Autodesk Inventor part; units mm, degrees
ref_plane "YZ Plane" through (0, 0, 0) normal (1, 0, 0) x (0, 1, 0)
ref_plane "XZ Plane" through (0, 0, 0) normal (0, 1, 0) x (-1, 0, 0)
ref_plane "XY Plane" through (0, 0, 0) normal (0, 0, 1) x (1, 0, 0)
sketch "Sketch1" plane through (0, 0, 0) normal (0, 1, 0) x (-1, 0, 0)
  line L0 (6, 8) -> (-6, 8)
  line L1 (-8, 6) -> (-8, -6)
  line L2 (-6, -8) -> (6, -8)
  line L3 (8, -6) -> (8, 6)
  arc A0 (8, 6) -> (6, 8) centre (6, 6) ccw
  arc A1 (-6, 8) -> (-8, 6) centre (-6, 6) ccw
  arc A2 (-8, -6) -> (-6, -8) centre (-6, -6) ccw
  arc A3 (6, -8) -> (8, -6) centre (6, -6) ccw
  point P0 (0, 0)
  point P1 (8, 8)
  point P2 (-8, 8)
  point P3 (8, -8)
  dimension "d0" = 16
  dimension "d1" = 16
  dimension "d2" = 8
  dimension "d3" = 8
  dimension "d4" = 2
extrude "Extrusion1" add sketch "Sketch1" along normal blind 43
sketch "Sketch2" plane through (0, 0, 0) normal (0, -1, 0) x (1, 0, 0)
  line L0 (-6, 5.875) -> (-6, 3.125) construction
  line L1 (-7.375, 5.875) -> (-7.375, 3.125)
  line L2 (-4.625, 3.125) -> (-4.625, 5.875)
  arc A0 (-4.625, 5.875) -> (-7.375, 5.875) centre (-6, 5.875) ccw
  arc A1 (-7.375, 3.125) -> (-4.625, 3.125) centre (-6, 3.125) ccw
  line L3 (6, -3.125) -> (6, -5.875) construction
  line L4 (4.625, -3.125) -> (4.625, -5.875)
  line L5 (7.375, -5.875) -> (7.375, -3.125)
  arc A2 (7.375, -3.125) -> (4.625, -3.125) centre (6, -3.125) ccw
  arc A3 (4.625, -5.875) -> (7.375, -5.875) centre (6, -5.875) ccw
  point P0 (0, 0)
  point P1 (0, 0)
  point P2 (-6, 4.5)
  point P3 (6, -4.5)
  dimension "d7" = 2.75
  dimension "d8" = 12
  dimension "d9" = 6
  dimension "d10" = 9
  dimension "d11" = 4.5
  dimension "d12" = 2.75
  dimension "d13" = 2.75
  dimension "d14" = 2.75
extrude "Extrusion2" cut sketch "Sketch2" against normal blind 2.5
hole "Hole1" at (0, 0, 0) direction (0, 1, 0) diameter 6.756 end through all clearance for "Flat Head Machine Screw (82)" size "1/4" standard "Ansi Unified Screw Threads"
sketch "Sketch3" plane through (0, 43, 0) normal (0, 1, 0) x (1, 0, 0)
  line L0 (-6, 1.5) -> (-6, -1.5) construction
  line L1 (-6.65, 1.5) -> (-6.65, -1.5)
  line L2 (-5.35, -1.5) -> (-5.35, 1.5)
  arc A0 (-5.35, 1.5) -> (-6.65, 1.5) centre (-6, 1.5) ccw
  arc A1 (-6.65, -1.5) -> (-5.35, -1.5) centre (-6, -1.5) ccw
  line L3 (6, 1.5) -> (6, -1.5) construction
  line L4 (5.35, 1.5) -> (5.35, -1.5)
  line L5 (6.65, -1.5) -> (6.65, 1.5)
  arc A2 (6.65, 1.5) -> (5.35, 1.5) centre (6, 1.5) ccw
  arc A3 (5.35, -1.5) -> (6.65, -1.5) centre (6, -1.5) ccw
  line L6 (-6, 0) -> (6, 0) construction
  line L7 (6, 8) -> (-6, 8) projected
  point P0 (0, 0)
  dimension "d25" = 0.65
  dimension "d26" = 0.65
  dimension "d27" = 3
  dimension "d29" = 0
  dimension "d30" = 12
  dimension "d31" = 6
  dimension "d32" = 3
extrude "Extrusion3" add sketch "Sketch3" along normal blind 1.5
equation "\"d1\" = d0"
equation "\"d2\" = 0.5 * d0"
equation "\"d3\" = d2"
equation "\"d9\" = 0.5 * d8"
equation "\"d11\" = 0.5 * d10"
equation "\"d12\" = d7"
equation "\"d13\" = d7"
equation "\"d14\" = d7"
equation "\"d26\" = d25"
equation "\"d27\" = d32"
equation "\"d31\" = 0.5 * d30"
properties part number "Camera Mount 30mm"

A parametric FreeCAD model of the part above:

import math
import FreeCAD as App
import Part
import Sketcher
from FreeCAD import Vector

doc = App.newDocument("Part")
body = doc.addObject("PartDesign::Body", "Body")

# Sketch on XZ plane
sketch1 = body.newObject("Sketcher::SketchObject", "Sketch")
sketch1.AttachmentSupport = (doc.getObject("XZ_Plane"), [""])
sketch1.MapMode = "FlatFace"
sketch1.addGeometry([
    Part.ArcOfCircle(Part.Circle(Vector(-6, 6, 0), Vector(0, 0, 1), 2), math.radians(90), math.radians(180)),  # 0
    Part.LineSegment(Vector(-6, 8, 0), Vector(6, 8, 0)),  # 1
    Part.ArcOfCircle(Part.Circle(Vector(6, 6, 0), Vector(0, 0, 1), 2), math.radians(0), math.radians(90)),  # 2
    Part.LineSegment(Vector(8, 6, 0), Vector(8, -6, 0)),  # 3
    Part.ArcOfCircle(Part.Circle(Vector(6, -6, 0), Vector(0, 0, 1), 2), math.radians(-90), math.radians(0)),  # 4
    Part.LineSegment(Vector(6, -8, 0), Vector(-6, -8, 0)),  # 5
    Part.ArcOfCircle(Part.Circle(Vector(-6, -6, 0), Vector(0, 0, 1), 2), math.radians(180), math.radians(270)),  # 6
    Part.LineSegment(Vector(-8, -6, 0), Vector(-8, 6, 0)),  # 7
], False)
sketch1.addConstraint([
    Sketcher.Constraint("Tangent", 0, 1, 1, 1),
    Sketcher.Constraint("Tangent", 1, 2, 2, 2),
    Sketcher.Constraint("Tangent", 2, 1, 3, 1),
    Sketcher.Constraint("Tangent", 3, 2, 4, 2),
    Sketcher.Constraint("Tangent", 4, 1, 5, 1),
    Sketcher.Constraint("Tangent", 5, 2, 6, 2),
    Sketcher.Constraint("Tangent", 6, 1, 7, 1),
    Sketcher.Constraint("Tangent", 7, 2, 0, 2),
    Sketcher.Constraint("Horizontal", 1),
    Sketcher.Constraint("Vertical", 3),
    Sketcher.Constraint("Horizontal", 5),
    Sketcher.Constraint("Vertical", 7),
    Sketcher.Constraint("Equal", 0, 2),
    Sketcher.Constraint("Equal", 2, 4),
    Sketcher.Constraint("Equal", 4, 6),
    Sketcher.Constraint("Symmetric", 0, 3, 4, 3, -1, 1),
    Sketcher.Constraint("Equal", 5, 3),
    Sketcher.Constraint("Radius", 0, 2.0),
    Sketcher.Constraint("DistanceY", -1, 1, 0, 1, 8.0),
])
pad1 = body.newObject("PartDesign::Pad", "Pad")
pad1.Profile = sketch1
pad1.Length = 43
pad1.Reversed = True

# Sketch on XZ plane
sketch2 = body.newObject("Sketcher::SketchObject", "Sketch001")
sketch2.AttachmentSupport = (doc.getObject("XZ_Plane"), [""])
sketch2.MapMode = "FlatFace"
sketch2.addGeometry([
    Part.ArcOfCircle(Part.Circle(Vector(-6, 5.875, 0), Vector(0, 0, 1), 1.375), math.radians(0), math.radians(180)),  # 0
    Part.LineSegment(Vector(-7.375, 5.875, 0), Vector(-7.375, 3.125, 0)),  # 1
    Part.ArcOfCircle(Part.Circle(Vector(-6, 3.125, 0), Vector(0, 0, 1), 1.375), math.radians(180), math.radians(360)),  # 2
    Part.LineSegment(Vector(-4.625, 3.125, 0), Vector(-4.625, 5.875, 0)),  # 3
    Part.ArcOfCircle(Part.Circle(Vector(6, -3.125, 0), Vector(0, 0, 1), 1.375), math.radians(0), math.radians(180)),  # 4
    Part.LineSegment(Vector(4.625, -3.125, 0), Vector(4.625, -5.875, 0)),  # 5
    Part.ArcOfCircle(Part.Circle(Vector(6, -5.875, 0), Vector(0, 0, 1), 1.375), math.radians(180), math.radians(360)),  # 6
    Part.LineSegment(Vector(7.375, -5.875, 0), Vector(7.375, -3.125, 0)),  # 7
], False)
sketch2.addConstraint([
    Sketcher.Constraint("Tangent", 0, 2, 1, 1),
    Sketcher.Constraint("Tangent", 1, 2, 2, 1),
    Sketcher.Constraint("Tangent", 2, 2, 3, 1),
    Sketcher.Constraint("Tangent", 3, 2, 0, 1),
    Sketcher.Constraint("Tangent", 4, 2, 5, 1),
    Sketcher.Constraint("Tangent", 5, 2, 6, 1),
    Sketcher.Constraint("Tangent", 6, 2, 7, 1),
    Sketcher.Constraint("Tangent", 7, 2, 4, 1),
    Sketcher.Constraint("Vertical", 1),
    Sketcher.Constraint("Vertical", 3),
    Sketcher.Constraint("Vertical", 5),
    Sketcher.Constraint("Vertical", 7),
    Sketcher.Constraint("Equal", 2, 4),
    Sketcher.Constraint("Symmetric", 2, 3, 4, 3, -1, 1),
    Sketcher.Constraint("Equal", 3, 5),
    Sketcher.Constraint("DistanceX", 0, 3, -1, 1, 6.0),
    Sketcher.Constraint("Radius", 0, 1.375),
    Sketcher.Constraint("DistanceY", 4, 3, 0, 3, 9.0),
    Sketcher.Constraint("DistanceY", 1, 2, 1, 1, 2.75),
])
pocket1 = body.newObject("PartDesign::Pocket", "Pocket")
pocket1.Profile = sketch2
pocket1.Length = 2.5

# Sketch on XZ plane
sketch3 = body.newObject("Sketcher::SketchObject", "Sketch002")
sketch3.AttachmentSupport = (doc.getObject("XZ_Plane"), [""])
sketch3.MapMode = "FlatFace"
sketch3.addGeometry(Part.Circle(Vector(0, 0, 0), Vector(0, 0, 1), 3.378), False)
sketch3.addConstraint([
    Sketcher.Constraint("Coincident", 0, 3, -1, 1),
    Sketcher.Constraint("Diameter", 0, 6.756),
])
doc.recompute()
hole = body.newObject("PartDesign::Hole", "Hole")
hole.Profile = sketch3
hole.ThreadType = "None"
hole.Diameter = 6.756
hole.DepthType = "ThroughAll"

# Sketch on XZ plane
sketch4 = body.newObject("Sketcher::SketchObject", "Sketch003")
sketch4.AttachmentSupport = (doc.getObject("XZ_Plane"), [""])
sketch4.MapMode = "FlatFace"
sketch4.AttachmentOffset = App.Placement(Vector(0, 0, -43), App.Rotation())
sketch4.addGeometry([
    Part.ArcOfCircle(Part.Circle(Vector(-6, -1.5, 0), Vector(0, 0, 1), 0.65), math.radians(180), math.radians(360)),  # 0
    Part.LineSegment(Vector(-6.65, -1.5, 0), Vector(-6.65, 1.5, 0)),  # 1
    Part.ArcOfCircle(Part.Circle(Vector(-6, 1.5, 0), Vector(0, 0, 1), 0.65), math.radians(0), math.radians(180)),  # 2
    Part.LineSegment(Vector(-5.35, 1.5, 0), Vector(-5.35, -1.5, 0)),  # 3
    Part.ArcOfCircle(Part.Circle(Vector(6, -1.5, 0), Vector(0, 0, 1), 0.65), math.radians(180), math.radians(360)),  # 4
    Part.LineSegment(Vector(5.35, -1.5, 0), Vector(5.35, 1.5, 0)),  # 5
    Part.ArcOfCircle(Part.Circle(Vector(6, 1.5, 0), Vector(0, 0, 1), 0.65), math.radians(0), math.radians(180)),  # 6
    Part.LineSegment(Vector(6.65, 1.5, 0), Vector(6.65, -1.5, 0)),  # 7
], False)
sketch4.addConstraint([
    Sketcher.Constraint("Tangent", 0, 1, 1, 1),
    Sketcher.Constraint("Tangent", 1, 2, 2, 2),
    Sketcher.Constraint("Tangent", 2, 1, 3, 1),
    Sketcher.Constraint("Tangent", 3, 2, 0, 2),
    Sketcher.Constraint("Tangent", 4, 1, 5, 1),
    Sketcher.Constraint("Tangent", 5, 2, 6, 2),
    Sketcher.Constraint("Tangent", 6, 1, 7, 1),
    Sketcher.Constraint("Tangent", 7, 2, 4, 2),
    Sketcher.Constraint("Vertical", 1),
    Sketcher.Constraint("Vertical", 3),
    Sketcher.Constraint("Vertical", 5),
    Sketcher.Constraint("Vertical", 7),
    Sketcher.Constraint("Equal", 2, 4),
    Sketcher.Constraint("Symmetric", 2, 3, 4, 3, -1, 1),
    Sketcher.Constraint("Horizontal", 0, 3, 4, 3),
    Sketcher.Constraint("Horizontal", 2, 3, 6, 3),
    Sketcher.Constraint("DistanceY", 1, 1, 1, 2, 3.0),
    Sketcher.Constraint("Radius", 0, 0.65),
    Sketcher.Constraint("DistanceX", 0, 3, -1, 1, 6.0),
])
pad2 = body.newObject("PartDesign::Pad", "Pad001")
pad2.Profile = sketch4
pad2.Length = 1.5
pad2.Reversed = True

doc.recompute()
